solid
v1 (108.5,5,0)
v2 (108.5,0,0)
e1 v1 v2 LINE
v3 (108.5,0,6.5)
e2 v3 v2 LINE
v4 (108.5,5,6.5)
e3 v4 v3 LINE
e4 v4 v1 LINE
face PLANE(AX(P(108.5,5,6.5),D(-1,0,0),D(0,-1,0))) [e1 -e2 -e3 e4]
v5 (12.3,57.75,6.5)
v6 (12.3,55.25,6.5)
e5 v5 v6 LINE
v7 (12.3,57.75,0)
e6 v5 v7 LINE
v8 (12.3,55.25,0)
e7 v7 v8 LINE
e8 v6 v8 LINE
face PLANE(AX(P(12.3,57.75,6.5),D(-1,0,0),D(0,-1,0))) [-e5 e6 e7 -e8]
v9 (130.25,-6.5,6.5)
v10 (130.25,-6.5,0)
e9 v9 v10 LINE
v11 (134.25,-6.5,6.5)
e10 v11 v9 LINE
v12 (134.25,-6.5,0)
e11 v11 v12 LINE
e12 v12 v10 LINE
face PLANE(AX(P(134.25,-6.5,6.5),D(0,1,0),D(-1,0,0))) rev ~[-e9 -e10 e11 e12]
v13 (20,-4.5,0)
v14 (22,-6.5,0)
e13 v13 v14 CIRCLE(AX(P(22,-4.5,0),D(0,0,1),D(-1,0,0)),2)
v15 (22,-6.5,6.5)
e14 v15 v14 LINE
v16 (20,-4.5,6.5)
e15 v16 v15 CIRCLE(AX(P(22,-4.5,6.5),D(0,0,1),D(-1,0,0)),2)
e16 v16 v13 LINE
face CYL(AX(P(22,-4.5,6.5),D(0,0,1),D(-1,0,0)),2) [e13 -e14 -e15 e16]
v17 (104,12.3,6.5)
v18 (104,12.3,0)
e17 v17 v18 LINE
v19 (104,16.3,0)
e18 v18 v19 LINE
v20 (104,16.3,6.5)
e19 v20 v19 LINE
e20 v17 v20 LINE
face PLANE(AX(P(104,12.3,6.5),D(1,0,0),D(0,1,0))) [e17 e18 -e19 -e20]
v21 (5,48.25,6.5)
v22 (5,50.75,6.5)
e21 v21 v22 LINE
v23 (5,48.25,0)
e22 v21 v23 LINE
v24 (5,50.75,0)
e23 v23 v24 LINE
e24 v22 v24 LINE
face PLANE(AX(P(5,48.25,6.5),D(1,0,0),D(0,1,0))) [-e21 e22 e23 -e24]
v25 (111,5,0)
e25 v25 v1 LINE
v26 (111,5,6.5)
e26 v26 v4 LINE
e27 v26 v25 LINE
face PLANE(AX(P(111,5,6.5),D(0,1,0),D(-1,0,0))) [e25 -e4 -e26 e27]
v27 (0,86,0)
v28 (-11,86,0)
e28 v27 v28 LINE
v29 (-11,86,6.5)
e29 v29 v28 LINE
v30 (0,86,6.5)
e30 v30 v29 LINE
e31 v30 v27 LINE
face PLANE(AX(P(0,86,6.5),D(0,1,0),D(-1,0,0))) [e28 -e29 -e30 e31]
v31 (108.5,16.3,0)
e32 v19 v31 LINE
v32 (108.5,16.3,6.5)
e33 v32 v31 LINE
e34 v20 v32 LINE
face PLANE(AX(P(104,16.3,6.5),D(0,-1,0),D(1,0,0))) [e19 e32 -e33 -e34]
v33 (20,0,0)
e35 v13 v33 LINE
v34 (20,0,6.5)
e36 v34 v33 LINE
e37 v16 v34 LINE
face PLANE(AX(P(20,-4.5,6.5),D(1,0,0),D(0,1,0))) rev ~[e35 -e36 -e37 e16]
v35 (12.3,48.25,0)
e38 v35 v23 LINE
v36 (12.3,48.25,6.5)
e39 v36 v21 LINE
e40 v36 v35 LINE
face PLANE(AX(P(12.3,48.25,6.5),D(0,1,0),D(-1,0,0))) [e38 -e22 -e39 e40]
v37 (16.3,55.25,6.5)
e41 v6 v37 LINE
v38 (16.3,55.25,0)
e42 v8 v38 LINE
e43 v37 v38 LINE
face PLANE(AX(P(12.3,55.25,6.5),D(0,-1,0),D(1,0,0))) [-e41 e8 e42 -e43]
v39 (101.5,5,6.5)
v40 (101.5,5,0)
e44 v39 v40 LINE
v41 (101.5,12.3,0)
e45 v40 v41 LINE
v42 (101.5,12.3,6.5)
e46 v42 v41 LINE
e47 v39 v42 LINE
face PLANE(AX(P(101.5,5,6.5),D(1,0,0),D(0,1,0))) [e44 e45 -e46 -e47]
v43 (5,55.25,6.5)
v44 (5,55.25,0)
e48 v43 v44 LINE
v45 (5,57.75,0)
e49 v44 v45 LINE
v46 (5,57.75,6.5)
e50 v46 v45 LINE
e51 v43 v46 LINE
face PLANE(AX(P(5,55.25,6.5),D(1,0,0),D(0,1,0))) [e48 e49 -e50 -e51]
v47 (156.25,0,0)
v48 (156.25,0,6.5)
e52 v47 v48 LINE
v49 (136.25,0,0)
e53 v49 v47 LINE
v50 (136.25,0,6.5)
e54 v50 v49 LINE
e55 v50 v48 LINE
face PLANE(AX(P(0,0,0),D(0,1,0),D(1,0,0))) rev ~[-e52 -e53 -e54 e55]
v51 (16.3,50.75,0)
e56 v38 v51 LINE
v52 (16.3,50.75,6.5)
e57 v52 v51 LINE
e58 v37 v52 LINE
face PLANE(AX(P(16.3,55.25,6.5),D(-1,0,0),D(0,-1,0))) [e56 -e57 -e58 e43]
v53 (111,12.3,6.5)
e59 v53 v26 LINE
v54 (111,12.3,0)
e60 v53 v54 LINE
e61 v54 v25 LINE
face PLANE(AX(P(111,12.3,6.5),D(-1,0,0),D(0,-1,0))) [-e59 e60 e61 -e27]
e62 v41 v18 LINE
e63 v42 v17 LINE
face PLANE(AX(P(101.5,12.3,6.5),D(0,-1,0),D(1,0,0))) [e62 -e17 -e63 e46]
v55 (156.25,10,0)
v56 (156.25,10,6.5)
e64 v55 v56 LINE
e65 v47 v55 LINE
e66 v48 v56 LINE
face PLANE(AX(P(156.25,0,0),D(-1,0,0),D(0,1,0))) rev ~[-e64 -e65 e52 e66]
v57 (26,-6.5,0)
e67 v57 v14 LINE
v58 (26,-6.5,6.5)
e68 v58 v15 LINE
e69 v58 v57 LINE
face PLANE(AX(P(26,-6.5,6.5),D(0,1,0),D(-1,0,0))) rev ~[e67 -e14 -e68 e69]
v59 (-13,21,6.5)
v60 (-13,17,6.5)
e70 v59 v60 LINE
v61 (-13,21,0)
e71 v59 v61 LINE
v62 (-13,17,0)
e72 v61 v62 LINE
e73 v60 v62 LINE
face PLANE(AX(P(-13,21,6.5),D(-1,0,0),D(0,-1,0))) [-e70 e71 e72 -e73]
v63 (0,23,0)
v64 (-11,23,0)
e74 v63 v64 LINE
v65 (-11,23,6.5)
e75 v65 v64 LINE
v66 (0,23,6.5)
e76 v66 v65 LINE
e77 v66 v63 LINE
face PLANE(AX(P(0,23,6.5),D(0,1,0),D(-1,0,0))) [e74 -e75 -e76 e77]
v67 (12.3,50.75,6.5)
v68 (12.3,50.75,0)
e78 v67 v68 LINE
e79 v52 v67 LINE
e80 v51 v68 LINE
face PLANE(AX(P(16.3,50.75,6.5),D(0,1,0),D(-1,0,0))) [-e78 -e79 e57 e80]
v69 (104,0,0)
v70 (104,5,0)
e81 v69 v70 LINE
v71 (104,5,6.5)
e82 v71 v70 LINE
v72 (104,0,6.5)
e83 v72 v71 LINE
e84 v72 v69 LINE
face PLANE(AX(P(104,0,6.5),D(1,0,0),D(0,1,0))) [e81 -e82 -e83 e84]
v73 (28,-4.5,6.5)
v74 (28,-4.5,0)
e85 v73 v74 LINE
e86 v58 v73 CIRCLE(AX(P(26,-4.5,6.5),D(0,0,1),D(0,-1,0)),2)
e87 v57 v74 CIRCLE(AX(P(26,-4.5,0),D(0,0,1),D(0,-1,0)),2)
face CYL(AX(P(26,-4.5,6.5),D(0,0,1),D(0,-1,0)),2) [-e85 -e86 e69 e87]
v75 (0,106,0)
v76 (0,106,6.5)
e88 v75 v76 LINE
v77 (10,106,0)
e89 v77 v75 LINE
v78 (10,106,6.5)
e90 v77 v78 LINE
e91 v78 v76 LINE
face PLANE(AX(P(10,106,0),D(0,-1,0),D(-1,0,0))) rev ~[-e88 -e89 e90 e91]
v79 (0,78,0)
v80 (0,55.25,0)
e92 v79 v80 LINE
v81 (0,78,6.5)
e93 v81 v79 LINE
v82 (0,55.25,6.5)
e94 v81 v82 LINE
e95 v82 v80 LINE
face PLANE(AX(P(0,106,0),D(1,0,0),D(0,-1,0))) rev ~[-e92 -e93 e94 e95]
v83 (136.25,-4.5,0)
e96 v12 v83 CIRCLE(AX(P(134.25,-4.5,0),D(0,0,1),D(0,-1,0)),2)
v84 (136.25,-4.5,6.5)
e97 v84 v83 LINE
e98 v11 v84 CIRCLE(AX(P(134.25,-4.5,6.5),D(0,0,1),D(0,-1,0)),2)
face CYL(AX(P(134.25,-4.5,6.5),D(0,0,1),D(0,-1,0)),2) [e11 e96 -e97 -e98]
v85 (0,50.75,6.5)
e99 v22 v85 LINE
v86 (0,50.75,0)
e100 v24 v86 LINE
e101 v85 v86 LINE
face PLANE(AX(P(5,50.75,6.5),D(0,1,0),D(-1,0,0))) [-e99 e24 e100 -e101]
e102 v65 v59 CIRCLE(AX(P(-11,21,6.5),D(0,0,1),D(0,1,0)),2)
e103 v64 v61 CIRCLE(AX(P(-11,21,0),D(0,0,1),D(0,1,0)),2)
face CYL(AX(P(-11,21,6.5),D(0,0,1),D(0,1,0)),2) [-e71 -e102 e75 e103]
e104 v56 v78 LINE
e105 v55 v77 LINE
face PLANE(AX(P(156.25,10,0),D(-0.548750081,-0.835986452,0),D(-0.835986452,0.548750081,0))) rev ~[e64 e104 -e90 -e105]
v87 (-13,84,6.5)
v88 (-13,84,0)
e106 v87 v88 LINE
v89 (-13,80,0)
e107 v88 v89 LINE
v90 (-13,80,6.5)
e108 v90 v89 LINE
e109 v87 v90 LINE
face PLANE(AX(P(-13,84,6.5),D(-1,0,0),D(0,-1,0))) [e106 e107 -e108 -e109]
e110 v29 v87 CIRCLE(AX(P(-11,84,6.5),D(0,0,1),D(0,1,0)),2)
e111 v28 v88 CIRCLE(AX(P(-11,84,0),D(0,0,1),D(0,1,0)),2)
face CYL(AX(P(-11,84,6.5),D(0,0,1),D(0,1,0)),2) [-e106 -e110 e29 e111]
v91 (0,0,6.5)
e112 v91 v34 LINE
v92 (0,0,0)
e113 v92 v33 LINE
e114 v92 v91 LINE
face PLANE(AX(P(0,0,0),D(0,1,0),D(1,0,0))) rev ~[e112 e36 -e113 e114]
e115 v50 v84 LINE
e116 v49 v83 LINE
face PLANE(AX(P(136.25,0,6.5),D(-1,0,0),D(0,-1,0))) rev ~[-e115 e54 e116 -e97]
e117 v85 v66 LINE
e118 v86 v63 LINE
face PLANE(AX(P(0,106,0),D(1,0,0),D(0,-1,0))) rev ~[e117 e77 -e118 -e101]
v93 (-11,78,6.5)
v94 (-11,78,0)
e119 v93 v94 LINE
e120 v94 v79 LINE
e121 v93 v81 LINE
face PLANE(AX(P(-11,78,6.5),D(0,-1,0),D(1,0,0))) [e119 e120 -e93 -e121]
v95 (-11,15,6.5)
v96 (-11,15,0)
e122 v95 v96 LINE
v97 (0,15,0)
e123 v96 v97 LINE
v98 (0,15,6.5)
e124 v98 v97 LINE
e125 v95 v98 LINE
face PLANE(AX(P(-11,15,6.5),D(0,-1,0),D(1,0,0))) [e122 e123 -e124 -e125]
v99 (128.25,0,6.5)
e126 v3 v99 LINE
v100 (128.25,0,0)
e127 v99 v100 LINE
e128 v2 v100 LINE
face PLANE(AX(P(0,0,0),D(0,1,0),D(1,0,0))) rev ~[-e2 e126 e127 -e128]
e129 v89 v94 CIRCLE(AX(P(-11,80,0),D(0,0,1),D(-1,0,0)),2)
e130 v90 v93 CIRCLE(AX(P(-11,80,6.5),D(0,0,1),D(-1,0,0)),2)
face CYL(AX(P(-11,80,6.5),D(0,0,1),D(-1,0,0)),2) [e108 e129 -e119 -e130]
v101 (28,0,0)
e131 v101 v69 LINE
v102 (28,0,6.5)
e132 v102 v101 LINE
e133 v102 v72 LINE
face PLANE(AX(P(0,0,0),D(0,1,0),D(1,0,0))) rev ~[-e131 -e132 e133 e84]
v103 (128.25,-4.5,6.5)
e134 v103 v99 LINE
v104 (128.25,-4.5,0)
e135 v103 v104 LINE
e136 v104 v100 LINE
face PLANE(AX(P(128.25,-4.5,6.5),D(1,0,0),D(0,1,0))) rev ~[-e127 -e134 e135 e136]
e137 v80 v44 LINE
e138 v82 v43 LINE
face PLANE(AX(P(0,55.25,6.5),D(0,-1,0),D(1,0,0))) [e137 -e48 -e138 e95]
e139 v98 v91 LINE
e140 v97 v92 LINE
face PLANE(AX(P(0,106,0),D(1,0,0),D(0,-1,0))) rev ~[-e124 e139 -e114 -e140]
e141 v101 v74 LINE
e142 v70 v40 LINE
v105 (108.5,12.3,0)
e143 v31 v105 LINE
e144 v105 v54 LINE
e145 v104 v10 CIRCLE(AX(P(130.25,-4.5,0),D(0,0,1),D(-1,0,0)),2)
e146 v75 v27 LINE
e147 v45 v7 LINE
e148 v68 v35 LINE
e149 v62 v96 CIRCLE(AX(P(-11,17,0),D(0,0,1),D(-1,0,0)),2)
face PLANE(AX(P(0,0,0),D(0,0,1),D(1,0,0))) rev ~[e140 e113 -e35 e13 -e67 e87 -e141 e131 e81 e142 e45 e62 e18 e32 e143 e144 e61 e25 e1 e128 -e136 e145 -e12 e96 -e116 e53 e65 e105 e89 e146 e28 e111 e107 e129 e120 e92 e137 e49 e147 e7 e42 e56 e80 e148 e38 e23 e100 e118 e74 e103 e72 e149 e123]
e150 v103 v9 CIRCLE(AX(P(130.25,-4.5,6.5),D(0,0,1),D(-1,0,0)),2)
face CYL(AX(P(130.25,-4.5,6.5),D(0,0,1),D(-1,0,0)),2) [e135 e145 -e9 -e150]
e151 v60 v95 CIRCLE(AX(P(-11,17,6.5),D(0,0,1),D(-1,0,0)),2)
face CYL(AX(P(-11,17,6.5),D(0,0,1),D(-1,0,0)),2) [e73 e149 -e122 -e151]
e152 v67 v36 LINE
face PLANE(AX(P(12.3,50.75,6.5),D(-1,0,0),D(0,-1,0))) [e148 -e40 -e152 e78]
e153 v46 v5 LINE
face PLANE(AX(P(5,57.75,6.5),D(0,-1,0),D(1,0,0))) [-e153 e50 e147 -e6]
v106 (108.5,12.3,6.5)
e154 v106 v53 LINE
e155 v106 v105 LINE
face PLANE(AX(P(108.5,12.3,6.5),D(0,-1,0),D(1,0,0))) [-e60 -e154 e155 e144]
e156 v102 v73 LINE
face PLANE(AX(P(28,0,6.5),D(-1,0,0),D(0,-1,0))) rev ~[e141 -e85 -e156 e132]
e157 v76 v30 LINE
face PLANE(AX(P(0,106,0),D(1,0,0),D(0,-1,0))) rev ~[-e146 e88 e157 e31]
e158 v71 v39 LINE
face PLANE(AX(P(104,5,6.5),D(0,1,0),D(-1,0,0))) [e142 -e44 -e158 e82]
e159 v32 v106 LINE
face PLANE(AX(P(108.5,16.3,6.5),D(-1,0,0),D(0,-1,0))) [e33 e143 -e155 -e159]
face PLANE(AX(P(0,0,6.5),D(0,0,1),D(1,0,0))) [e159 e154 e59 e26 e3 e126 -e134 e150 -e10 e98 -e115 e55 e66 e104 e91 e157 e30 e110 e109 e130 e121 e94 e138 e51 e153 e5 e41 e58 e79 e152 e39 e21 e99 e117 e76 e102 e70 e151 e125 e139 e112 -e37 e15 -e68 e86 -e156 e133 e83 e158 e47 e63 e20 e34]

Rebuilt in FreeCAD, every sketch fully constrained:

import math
import FreeCAD as App
import Part
import Sketcher
from FreeCAD import Vector
Q = App.Units.Quantity


def add_polygon(sketch, points):
    """Adds a closed chain of lines whose ends are joined by coincident constraints."""
    first, n = sketch.GeometryCount, len(points)
    for a, b in zip(points, points[1:] + points[:1]):
        sketch.addGeometry(Part.LineSegment(App.Vector(*a, 0), App.Vector(*b, 0)), False)
    for i in range(n):
        sketch.addConstraint(Sketcher.Constraint("Coincident", first + i, 2, first + (i + 1) % n, 1))

doc = App.newDocument("Part")
body = doc.addObject("PartDesign::Body", "Body")

sketch1 = body.newObject("Sketcher::SketchObject", "Sketch")
sketch1.AttachmentSupport = (doc.getObject("XY_Plane"), [""])
sketch1.MapMode = "FlatFace"
add_polygon(sketch1, [(10, 106), (0, 106), (0, 0), (156, 0), (156, 10)])
sketch1.addConstraint([
    Sketcher.Constraint("Horizontal", 0),
    Sketcher.Constraint("Vertical", 1),
    Sketcher.Constraint("Horizontal", 2),
    Sketcher.Constraint("Vertical", 3),
    Sketcher.Constraint("Coincident", 1, 2, -1, 1),
    Sketcher.Constraint("Equal", 0, 3),
    Sketcher.Constraint("DistanceX", 0, 2, 0, 1, Q("10 mm")),
    Sketcher.Constraint("DistanceY", 1, 2, 1, 1, Q("106 mm")),
    Sketcher.Constraint("DistanceX", 2, 1, 2, 2, Q("156.25 mm")),
])
pad1 = body.newObject("PartDesign::Pad", "Pad")
pad1.Profile = sketch1
pad1.Length = 6.5

sketch2 = body.newObject("Sketcher::SketchObject", "Sketch001")
sketch2.AttachmentSupport = (doc.getObject("XY_Plane"), [""])
sketch2.MapMode = "FlatFace"
sketch2.AttachmentOffset = App.Placement(Vector(0, 0, 6.5), App.Rotation())
add_polygon(sketch2, [(5, 55.2), (0, 55.2), (0, 50.8), (5, 50.8), (5, 48.2), (12.3, 48.2), (12.3, 50.8), (16.3, 50.8), (16.3, 55.2), (12.3, 55.2), (12.3, 57.8), (5, 57.8)])
add_polygon(sketch2, [(104, 5), (104, 0), (108.5, 0), (108.5, 5), (111, 5), (111, 12.3), (108.5, 12.3), (108.5, 16.3), (104, 16.3), (104, 12.3), (101.5, 12.3), (101.5, 5)])
sketch2.addConstraint([
    Sketcher.Constraint("Horizontal", 0),
    Sketcher.Constraint("Vertical", 1),
    Sketcher.Constraint("Horizontal", 2),
    Sketcher.Constraint("Vertical", 3),
    Sketcher.Constraint("Horizontal", 4),
    Sketcher.Constraint("Vertical", 5),
    Sketcher.Constraint("Horizontal", 6),
    Sketcher.Constraint("Vertical", 7),
    Sketcher.Constraint("Horizontal", 8),
    Sketcher.Constraint("Vertical", 9),
    Sketcher.Constraint("Horizontal", 10),
    Sketcher.Constraint("Vertical", 11),
    Sketcher.Constraint("Vertical", 12),
    Sketcher.Constraint("Horizontal", 13),
    Sketcher.Constraint("Vertical", 14),
    Sketcher.Constraint("Horizontal", 15),
    Sketcher.Constraint("Vertical", 16),
    Sketcher.Constraint("Horizontal", 17),
    Sketcher.Constraint("Vertical", 18),
    Sketcher.Constraint("Horizontal", 19),
    Sketcher.Constraint("Vertical", 20),
    Sketcher.Constraint("Horizontal", 21),
    Sketcher.Constraint("Vertical", 22),
    Sketcher.Constraint("Horizontal", 23),
    Sketcher.Constraint("PointOnObject", 0, 2, -2),
    Sketcher.Constraint("PointOnObject", 12, 2, -1),
    Sketcher.Constraint("Horizontal", 2, 2, 5, 2),
    Sketcher.Constraint("Horizontal", 0, 2, 7, 2),
    Sketcher.Constraint("Horizontal", 17, 2, 20, 2),
    Sketcher.Constraint("Horizontal", 15, 2, 22, 2),
    Sketcher.Constraint("Vertical", 5, 2, 8, 2),
    Sketcher.Constraint("Vertical", 3, 2, 10, 2),
    Sketcher.Constraint("Vertical", 14, 2, 17, 2),
    Sketcher.Constraint("Vertical", 12, 2, 19, 2),
    Sketcher.Constraint("Equal", 17, 21),
    Sketcher.Constraint("Equal", 19, 1),
    Sketcher.Constraint("Equal", 23, 3),
    Sketcher.Constraint("Equal", 5, 9),
    Sketcher.Constraint("Equal", 2, 12),
    Sketcher.Constraint("Equal", 10, 16),
    Sketcher.Constraint("Equal", 8, 18),
    Sketcher.Constraint("DistanceX", 0, 2, 0, 1, Q("5 mm")),
    Sketcher.Constraint("DistanceX", 6, 1, 6, 2, Q("4 mm")),
    Sketcher.Constraint("DistanceX", 4, 1, 4, 2, Q("7.3 mm")),
    Sketcher.Constraint("DistanceX", 13, 1, 13, 2, Q("4.5 mm")),
    Sketcher.Constraint("DistanceX", 15, 1, 15, 2, Q("2.5 mm")),
    Sketcher.Constraint("DistanceX", -1, 1, 12, 2, Q("104 mm")),
    Sketcher.Constraint("DistanceY", -1, 1, 0, 2, Q("55.25 mm")),
])
pocket1 = body.newObject("PartDesign::Pocket", "Pocket")
pocket1.Profile = sketch2
pocket1.Type = "ThroughAll"

sketch3 = body.newObject("Sketcher::SketchObject", "Sketch002")
sketch3.AttachmentSupport = (doc.getObject("XY_Plane"), [""])
sketch3.MapMode = "FlatFace"
sketch3.AttachmentOffset = App.Placement(Vector(0, 0, 6.5), App.Rotation())
sketch3.addGeometry([
    Part.LineSegment(Vector(28, 0, 0), Vector(20, 0, 0)),
    Part.LineSegment(Vector(20, 0, 0), Vector(20, -4.5, 0)),
    Part.ArcOfCircle(Part.Circle(Vector(22, -4.5, 0), Vector(0, 0, 1), 2), math.radians(180), math.radians(270)),
    Part.LineSegment(Vector(22, -6.5, 0), Vector(26, -6.5, 0)),
    Part.ArcOfCircle(Part.Circle(Vector(26, -4.5, 0), Vector(0, 0, 1), 2), math.radians(-90), math.radians(0)),
    Part.LineSegment(Vector(28, -4.5, 0), Vector(28, 0, 0)),
    Part.LineSegment(Vector(0, 15, 0), Vector(0, 23, 0)),
    Part.LineSegment(Vector(0, 23, 0), Vector(-11, 23, 0)),
    Part.ArcOfCircle(Part.Circle(Vector(-11, 21, 0), Vector(0, 0, 1), 2), math.radians(90), math.radians(180)),
    Part.LineSegment(Vector(-13, 21, 0), Vector(-13, 17, 0)),
    Part.ArcOfCircle(Part.Circle(Vector(-11, 17, 0), Vector(0, 0, 1), 2), math.radians(180), math.radians(270)),
    Part.LineSegment(Vector(-11, 15, 0), Vector(0, 15, 0)),
    Part.LineSegment(Vector(136.2, 0, 0), Vector(128.2, 0, 0)),
    Part.LineSegment(Vector(128.2, 0, 0), Vector(128.2, -4.5, 0)),
    Part.ArcOfCircle(Part.Circle(Vector(130.2, -4.5, 0), Vector(0, 0, 1), 2), math.radians(180), math.radians(270)),
    Part.LineSegment(Vector(130.2, -6.5, 0), Vector(134.2, -6.5, 0)),
    Part.ArcOfCircle(Part.Circle(Vector(134.2, -4.5, 0), Vector(0, 0, 1), 2), math.radians(-90), math.radians(0)),
    Part.LineSegment(Vector(136.2, -4.5, 0), Vector(136.2, 0, 0)),
    Part.LineSegment(Vector(0, 78, 0), Vector(0, 86, 0)),
    Part.LineSegment(Vector(0, 86, 0), Vector(-11, 86, 0)),
    Part.ArcOfCircle(Part.Circle(Vector(-11, 84, 0), Vector(0, 0, 1), 2), math.radians(90), math.radians(180)),
    Part.LineSegment(Vector(-13, 84, 0), Vector(-13, 80, 0)),
    Part.ArcOfCircle(Part.Circle(Vector(-11, 80, 0), Vector(0, 0, 1), 2), math.radians(180), math.radians(270)),
    Part.LineSegment(Vector(-11, 78, 0), Vector(0, 78, 0)),
], False)
sketch3.addConstraint([
    Sketcher.Constraint("Coincident", 0, 2, 1, 1),
    Sketcher.Constraint("Tangent", 1, 2, 2, 1),
    Sketcher.Constraint("Tangent", 2, 2, 3, 1),
    Sketcher.Constraint("Tangent", 3, 2, 4, 1),
    Sketcher.Constraint("Tangent", 4, 2, 5, 1),
    Sketcher.Constraint("Coincident", 5, 2, 0, 1),
    Sketcher.Constraint("Coincident", 6, 2, 7, 1),
    Sketcher.Constraint("Tangent", 7, 2, 8, 1),
    Sketcher.Constraint("Tangent", 8, 2, 9, 1),
    Sketcher.Constraint("Tangent", 9, 2, 10, 1),
    Sketcher.Constraint("Tangent", 10, 2, 11, 1),
    Sketcher.Constraint("Coincident", 11, 2, 6, 1),
    Sketcher.Constraint("Coincident", 12, 2, 13, 1),
    Sketcher.Constraint("Tangent", 13, 2, 14, 1),
    Sketcher.Constraint("Tangent", 14, 2, 15, 1),
    Sketcher.Constraint("Tangent", 15, 2, 16, 1),
    Sketcher.Constraint("Tangent", 16, 2, 17, 1),
    Sketcher.Constraint("Coincident", 17, 2, 12, 1),
    Sketcher.Constraint("Coincident", 18, 2, 19, 1),
    Sketcher.Constraint("Tangent", 19, 2, 20, 1),
    Sketcher.Constraint("Tangent", 20, 2, 21, 1),
    Sketcher.Constraint("Tangent", 21, 2, 22, 1),
    Sketcher.Constraint("Tangent", 22, 2, 23, 1),
    Sketcher.Constraint("Coincident", 23, 2, 18, 1),
    Sketcher.Constraint("Horizontal", 0),
    Sketcher.Constraint("Vertical", 1),
    Sketcher.Constraint("Horizontal", 3),
    Sketcher.Constraint("Vertical", 5),
    Sketcher.Constraint("Vertical", 6),
    Sketcher.Constraint("Horizontal", 7),
    Sketcher.Constraint("Vertical", 9),
    Sketcher.Constraint("Horizontal", 11),
    Sketcher.Constraint("Horizontal", 12),
    Sketcher.Constraint("Vertical", 13),
    Sketcher.Constraint("Horizontal", 15),
    Sketcher.Constraint("Vertical", 17),
    Sketcher.Constraint("Vertical", 18),
    Sketcher.Constraint("Horizontal", 19),
    Sketcher.Constraint("Vertical", 21),
    Sketcher.Constraint("Horizontal", 23),
    Sketcher.Constraint("Equal", 2, 4),
    Sketcher.Constraint("Equal", 4, 8),
    Sketcher.Constraint("Equal", 8, 10),
    Sketcher.Constraint("Equal", 10, 14),
    Sketcher.Constraint("Equal", 14, 16),
    Sketcher.Constraint("Equal", 16, 20),
    Sketcher.Constraint("Equal", 20, 22),
    Sketcher.Constraint("PointOnObject", 0, 2, -1),
    Sketcher.Constraint("PointOnObject", 6, 2, -2),
    Sketcher.Constraint("PointOnObject", 12, 2, -1),
    Sketcher.Constraint("PointOnObject", 18, 2, -2),
    Sketcher.Constraint("Horizontal", 4, 3, 14, 3),
    Sketcher.Constraint("Vertical", 10, 3, 20, 3),
    Sketcher.Constraint("Equal", 0, 12),
    Sketcher.Constraint("Equal", 12, 6),
    Sketcher.Constraint("Equal", 6, 18),
    Sketcher.Constraint("Radius", 2, Q("2 mm")),
    Sketcher.Constraint("DistanceX", 0, 2, 0, 1, Q("8 mm")),
    Sketcher.Constraint("DistanceX", -1, 1, 0, 2, Q("20 mm")),
    Sketcher.Constraint("DistanceX", 8, 2, -1, 1, Q("13 mm")),
    Sketcher.Constraint("DistanceY", -1, 1, 10, 2, Q("15 mm")),
    Sketcher.Constraint("DistanceY", 2, 2, -1, 1, Q("6.5 mm")),
    Sketcher.Constraint("DistanceY", -1, 1, 20, 3, Q("84 mm")),
    Sketcher.Constraint("DistanceX", -1, 1, 14, 3, Q("130.25 mm")),
])
pad2 = body.newObject("PartDesign::Pad", "Pad001")
pad2.Profile = sketch3
pad2.Length = 6.5
pad2.Reversed = True

doc.recompute()
